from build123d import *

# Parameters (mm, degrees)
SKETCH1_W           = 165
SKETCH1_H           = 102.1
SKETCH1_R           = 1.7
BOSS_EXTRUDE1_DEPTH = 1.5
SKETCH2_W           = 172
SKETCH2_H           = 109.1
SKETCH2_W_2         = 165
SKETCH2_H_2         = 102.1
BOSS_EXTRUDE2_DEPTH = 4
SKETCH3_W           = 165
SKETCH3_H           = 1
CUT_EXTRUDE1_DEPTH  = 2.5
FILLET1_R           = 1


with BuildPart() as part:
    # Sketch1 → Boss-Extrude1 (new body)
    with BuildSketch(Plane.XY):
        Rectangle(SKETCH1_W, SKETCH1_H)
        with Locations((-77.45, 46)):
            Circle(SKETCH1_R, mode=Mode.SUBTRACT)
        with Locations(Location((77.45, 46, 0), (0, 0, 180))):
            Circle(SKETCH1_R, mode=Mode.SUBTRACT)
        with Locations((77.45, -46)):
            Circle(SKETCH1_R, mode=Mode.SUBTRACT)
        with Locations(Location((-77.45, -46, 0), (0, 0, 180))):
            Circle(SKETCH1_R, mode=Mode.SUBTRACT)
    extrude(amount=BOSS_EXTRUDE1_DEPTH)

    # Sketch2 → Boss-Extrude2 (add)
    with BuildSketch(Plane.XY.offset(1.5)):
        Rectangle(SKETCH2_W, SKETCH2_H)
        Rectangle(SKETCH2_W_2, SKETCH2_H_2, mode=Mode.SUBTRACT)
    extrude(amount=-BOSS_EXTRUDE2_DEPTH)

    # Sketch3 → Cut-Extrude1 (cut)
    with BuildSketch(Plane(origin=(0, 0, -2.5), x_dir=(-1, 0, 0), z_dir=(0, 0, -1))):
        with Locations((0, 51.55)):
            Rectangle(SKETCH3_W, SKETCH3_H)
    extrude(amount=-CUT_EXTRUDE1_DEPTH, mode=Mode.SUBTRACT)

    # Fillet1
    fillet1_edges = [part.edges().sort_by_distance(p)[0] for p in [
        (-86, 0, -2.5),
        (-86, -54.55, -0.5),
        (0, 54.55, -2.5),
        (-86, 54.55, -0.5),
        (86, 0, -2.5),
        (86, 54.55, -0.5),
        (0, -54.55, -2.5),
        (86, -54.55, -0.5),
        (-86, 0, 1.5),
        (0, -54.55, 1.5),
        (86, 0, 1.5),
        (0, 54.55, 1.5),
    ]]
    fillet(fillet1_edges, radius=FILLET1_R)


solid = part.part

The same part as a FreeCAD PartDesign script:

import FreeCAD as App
import Part
import Sketcher


def edges_at(feature, points):
    """Names of the edges that pass closest to the given points."""
    edges = feature.Shape.Edges
    near = lambda p: min(range(len(edges)), key=lambda i: edges[i].distToShape(Part.Vertex(*p))[0])
    return sorted({f"Edge{near(p) + 1}" for p in points})


def add_polygon(sketch, points):
    """Adds a closed chain of lines whose ends are joined by coincident constraints."""
    first, n = sketch.GeometryCount, len(points)
    for a, b in zip(points, points[1:] + points[:1]):
        sketch.addGeometry(Part.LineSegment(App.Vector(*a, 0), App.Vector(*b, 0)), False)
    for i in range(n):
        sketch.addConstraint(Sketcher.Constraint("Coincident", first + i, 2, first + (i + 1) % n, 1))

doc = App.newDocument("Part")
body = doc.addObject("PartDesign::Body", "Body")

# Sketch on XY plane
sketch1 = body.newObject("Sketcher::SketchObject", "Sketch")
sketch1.AttachmentSupport = (doc.getObject("XY_Plane"), [""])
sketch1.MapMode = "FlatFace"
add_polygon(sketch1, [(-82.5, 51.05), (-82.5, -51.05), (82.5, -51.05), (82.5, 51.05)])  # lines 0-3
sketch1.addGeometry(Part.Circle(App.Vector(-77.45, -46, 0), App.Vector(0, 0, 1), 1.7), False)  # 4
sketch1.addGeometry(Part.Circle(App.Vector(77.45, -46, 0), App.Vector(0, 0, 1), 1.7), False)  # 5
sketch1.addGeometry(Part.Circle(App.Vector(-77.45, 46, 0), App.Vector(0, 0, 1), 1.7), False)  # 6
sketch1.addGeometry(Part.Circle(App.Vector(77.45, 46, 0), App.Vector(0, 0, 1), 1.7), False)  # 7
sketch1.addConstraint([
    Sketcher.Constraint("Vertical", 0),
    Sketcher.Constraint("Horizontal", 1),
    Sketcher.Constraint("Vertical", 2),
    Sketcher.Constraint("Horizontal", 3),
    Sketcher.Constraint("Equal", 4, 5),
    Sketcher.Constraint("Equal", 5, 6),
    Sketcher.Constraint("Equal", 6, 7),
    Sketcher.Constraint("Symmetric", 5, 3, 6, 3, -1, 1),
    Sketcher.Constraint("Symmetric", 4, 3, 7, 3, -1, 1),
    Sketcher.Constraint("Symmetric", 0, 2, 2, 2, -1, 1),
    Sketcher.Constraint("Symmetric", 4, 3, 5, 3, -2),
    Sketcher.Constraint("Diameter", 4, 3.4),
    Sketcher.Constraint("DistanceX", 1, 1, 1, 2, 165.0),
    Sketcher.Constraint("DistanceY", 0, 2, 0, 1, 102.1),
    Sketcher.Constraint("DistanceY", 4, 3, -1, 1, 46.0),
    Sketcher.Constraint("DistanceX", 4, 3, 5, 3, 154.9),
])
pad1 = body.newObject("PartDesign::Pad", "Pad")
pad1.Profile = sketch1
pad1.Length = 1.5

# Sketch on XY plane
sketch2 = body.newObject("Sketcher::SketchObject", "Sketch001")
sketch2.AttachmentSupport = (doc.getObject("XY_Plane"), [""])
sketch2.MapMode = "FlatFace"
sketch2.AttachmentOffset = App.Placement(App.Vector(0, 0, 1.5), App.Rotation())
add_polygon(sketch2, [(-86, 54.55), (-86, -54.55), (86, -54.55), (86, 54.55)])  # lines 0-3
add_polygon(sketch2, [(82.5, -51.05), (-82.5, -51.05), (-82.5, 51.05), (82.5, 51.05)])  # lines 4-7
sketch2.addConstraint([
    Sketcher.Constraint("Vertical", 0),
    Sketcher.Constraint("Horizontal", 1),
    Sketcher.Constraint("Vertical", 2),
    Sketcher.Constraint("Horizontal", 3),
    Sketcher.Constraint("Horizontal", 4),
    Sketcher.Constraint("Vertical", 5),
    Sketcher.Constraint("Horizontal", 6),
    Sketcher.Constraint("Vertical", 7),
    Sketcher.Constraint("Symmetric", 0, 2, 2, 2, -1, 1),
    Sketcher.Constraint("Symmetric", 4, 2, 6, 2, -1, 1),
    Sketcher.Constraint("DistanceX", 1, 1, 1, 2, 172.0),
    Sketcher.Constraint("DistanceX", 4, 2, 4, 1, 165.0),
    Sketcher.Constraint("DistanceY", 0, 2, 0, 1, 109.1),
    Sketcher.Constraint("DistanceY", 5, 1, 5, 2, 102.1),
])
pad2 = body.newObject("PartDesign::Pad", "Pad001")
pad2.Profile = sketch2
pad2.Length = 4
pad2.Reversed = True

# Sketch on XY plane
sketch3 = body.newObject("Sketcher::SketchObject", "Sketch002")
sketch3.AttachmentSupport = (doc.getObject("XY_Plane"), [""])
sketch3.MapMode = "FlatFace"
sketch3.AttachmentOffset = App.Placement(App.Vector(0, 0, -2.5), App.Rotation())
add_polygon(sketch3, [(82.5, 52.05), (82.5, 51.05), (-82.5, 51.05), (-82.5, 52.05)])  # lines 0-3
sketch3.addConstraint([
    Sketcher.Constraint("Vertical", 0),
    Sketcher.Constraint("Horizontal", 1),
    Sketcher.Constraint("Vertical", 2),
    Sketcher.Constraint("Horizontal", 3),
    Sketcher.Constraint("DistanceX", 1, 2, 1, 1, 165.0),
    Sketcher.Constraint("DistanceY", 0, 2, 0, 1, 1.0),
    Sketcher.Constraint("DistanceX", -1, 1, 0, 2, 82.5),
    Sketcher.Constraint("DistanceY", -1, 1, 0, 2, 51.05),
])
pocket1 = body.newObject("PartDesign::Pocket", "Pocket")
pocket1.Profile = sketch3
pocket1.Length = 2.5
pocket1.Reversed = True
doc.recompute()

fillet = body.newObject("PartDesign::Fillet", "Fillet")
fillet.Base = (pocket1, edges_at(pocket1, [
    (-86, 0, -2.5),
    (-86, -54.55, -0.5),
    (0, 54.55, -2.5),
    (-86, 54.55, -0.5),
    (86, 0, -2.5),
    (86, 54.55, -0.5),
    (0, -54.55, -2.5),
    (86, -54.55, -0.5),
    (-86, 0, 1.5),
    (0, -54.55, 1.5),
    (86, 0, 1.5),
    (0, 54.55, 1.5),
]))
fillet.Radius = 1

doc.recompute()
